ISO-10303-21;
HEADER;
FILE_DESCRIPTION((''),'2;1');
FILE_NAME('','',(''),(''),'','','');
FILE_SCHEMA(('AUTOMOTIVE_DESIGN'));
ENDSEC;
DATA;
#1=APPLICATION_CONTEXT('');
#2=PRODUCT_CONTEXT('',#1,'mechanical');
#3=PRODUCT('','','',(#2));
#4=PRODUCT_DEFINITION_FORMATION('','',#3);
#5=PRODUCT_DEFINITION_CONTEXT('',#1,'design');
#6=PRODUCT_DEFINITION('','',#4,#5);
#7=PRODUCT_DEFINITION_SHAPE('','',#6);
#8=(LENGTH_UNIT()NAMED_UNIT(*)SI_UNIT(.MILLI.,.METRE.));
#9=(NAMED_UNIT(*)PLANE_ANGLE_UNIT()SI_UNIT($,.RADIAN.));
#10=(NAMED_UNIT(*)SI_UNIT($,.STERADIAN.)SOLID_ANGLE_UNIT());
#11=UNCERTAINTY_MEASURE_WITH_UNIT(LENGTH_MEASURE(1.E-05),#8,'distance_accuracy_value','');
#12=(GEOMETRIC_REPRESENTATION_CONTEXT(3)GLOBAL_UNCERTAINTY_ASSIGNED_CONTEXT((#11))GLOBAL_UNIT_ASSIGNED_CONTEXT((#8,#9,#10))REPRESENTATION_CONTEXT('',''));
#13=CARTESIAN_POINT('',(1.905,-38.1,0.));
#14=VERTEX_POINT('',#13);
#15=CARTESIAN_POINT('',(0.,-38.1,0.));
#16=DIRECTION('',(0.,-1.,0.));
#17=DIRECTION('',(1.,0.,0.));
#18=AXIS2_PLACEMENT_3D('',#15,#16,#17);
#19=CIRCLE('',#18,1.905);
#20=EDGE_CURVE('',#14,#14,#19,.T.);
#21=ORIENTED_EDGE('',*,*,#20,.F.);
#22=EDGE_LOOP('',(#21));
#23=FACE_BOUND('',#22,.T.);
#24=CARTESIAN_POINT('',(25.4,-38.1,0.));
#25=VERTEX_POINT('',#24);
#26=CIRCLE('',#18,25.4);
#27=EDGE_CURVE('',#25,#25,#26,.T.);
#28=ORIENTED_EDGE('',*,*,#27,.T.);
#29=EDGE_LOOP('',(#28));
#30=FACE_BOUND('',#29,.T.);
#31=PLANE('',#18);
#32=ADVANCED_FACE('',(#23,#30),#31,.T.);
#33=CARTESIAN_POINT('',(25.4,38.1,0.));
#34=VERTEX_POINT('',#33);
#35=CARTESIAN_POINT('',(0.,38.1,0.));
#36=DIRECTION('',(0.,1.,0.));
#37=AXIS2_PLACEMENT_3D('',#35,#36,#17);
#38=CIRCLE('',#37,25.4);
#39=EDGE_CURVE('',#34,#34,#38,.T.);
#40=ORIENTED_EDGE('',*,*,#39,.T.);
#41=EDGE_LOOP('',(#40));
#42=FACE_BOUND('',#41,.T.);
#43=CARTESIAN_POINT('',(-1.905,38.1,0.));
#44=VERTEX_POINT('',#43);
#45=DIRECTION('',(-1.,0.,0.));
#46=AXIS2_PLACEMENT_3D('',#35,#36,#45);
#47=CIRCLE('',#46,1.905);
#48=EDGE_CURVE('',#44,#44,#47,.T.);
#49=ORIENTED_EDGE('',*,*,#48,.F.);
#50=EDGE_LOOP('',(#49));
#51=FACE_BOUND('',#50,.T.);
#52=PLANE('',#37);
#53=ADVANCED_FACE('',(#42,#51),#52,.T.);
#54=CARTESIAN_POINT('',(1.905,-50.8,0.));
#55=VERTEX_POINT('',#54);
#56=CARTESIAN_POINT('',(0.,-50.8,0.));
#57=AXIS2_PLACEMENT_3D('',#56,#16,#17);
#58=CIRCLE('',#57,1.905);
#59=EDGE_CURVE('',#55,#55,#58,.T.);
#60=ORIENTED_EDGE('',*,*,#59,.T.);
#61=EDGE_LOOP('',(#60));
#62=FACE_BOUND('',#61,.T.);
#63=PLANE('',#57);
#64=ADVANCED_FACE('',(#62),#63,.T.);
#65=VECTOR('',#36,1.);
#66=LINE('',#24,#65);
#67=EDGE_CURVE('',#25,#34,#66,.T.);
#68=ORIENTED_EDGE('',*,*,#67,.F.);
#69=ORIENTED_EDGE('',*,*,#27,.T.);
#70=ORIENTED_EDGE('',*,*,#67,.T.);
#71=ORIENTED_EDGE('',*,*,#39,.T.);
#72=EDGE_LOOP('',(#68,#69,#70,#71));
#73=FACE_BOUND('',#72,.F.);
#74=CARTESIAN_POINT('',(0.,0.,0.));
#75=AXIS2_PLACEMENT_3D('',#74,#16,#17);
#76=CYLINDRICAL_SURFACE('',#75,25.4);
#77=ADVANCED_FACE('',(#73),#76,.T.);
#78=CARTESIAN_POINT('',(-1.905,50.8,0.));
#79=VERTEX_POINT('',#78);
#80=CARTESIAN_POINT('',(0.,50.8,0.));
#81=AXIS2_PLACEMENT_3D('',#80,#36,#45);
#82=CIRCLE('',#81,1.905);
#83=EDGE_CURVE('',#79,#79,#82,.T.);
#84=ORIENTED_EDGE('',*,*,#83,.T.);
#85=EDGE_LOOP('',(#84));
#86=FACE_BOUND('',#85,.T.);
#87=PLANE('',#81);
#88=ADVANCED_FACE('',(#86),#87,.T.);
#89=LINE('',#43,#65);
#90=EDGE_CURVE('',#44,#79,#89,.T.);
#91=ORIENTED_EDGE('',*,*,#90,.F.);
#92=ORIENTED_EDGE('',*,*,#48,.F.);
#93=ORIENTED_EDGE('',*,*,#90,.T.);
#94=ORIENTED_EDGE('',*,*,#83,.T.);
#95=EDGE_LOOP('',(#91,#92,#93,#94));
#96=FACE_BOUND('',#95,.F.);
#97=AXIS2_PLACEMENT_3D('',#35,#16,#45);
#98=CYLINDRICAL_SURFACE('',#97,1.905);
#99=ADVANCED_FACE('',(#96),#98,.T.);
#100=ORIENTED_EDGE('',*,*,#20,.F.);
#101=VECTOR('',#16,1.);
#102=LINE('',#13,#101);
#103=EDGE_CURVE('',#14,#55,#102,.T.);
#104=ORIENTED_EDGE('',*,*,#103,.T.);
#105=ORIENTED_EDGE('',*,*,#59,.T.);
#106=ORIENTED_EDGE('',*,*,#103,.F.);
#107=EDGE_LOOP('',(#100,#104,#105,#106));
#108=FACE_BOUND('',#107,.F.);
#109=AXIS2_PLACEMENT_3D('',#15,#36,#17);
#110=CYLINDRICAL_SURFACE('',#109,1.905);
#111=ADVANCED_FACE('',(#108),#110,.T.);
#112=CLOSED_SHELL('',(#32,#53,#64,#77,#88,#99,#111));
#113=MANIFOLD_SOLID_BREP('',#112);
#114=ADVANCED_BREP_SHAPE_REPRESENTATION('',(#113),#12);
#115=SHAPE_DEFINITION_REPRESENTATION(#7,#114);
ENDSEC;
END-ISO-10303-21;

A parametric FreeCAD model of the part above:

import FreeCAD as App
import Part
import Sketcher
Q = App.Units.Quantity

doc = App.newDocument("Part")
params = doc.addObject("Spreadsheet::Sheet", "Params")
for row, (alias, value) in enumerate([
    ("sketch1_diameter", "2 in"),
    ("pad1_length", "1.5 in"),
    ("sketch2_diameter", "2 in"),
    ("pad2_length", "1.5 in"),
    ("sketch3_diameter", "0.15 in"),
    ("pad3_length", "0.5 in"),
    ("sketch4_diameter", "0.15 in"),
    ("pad4_length", "0.5 in"),
], start=1):
    params.set(f"A{row}", alias)
    params.set(f"B{row}", "=" + value)
    params.setAlias(f"B{row}", alias)

body = doc.addObject("PartDesign::Body", "Body")

sketch1 = doc.addObject("Sketcher::SketchObject", "Sketch")
body.addObject(sketch1)
sketch1.AttachmentSupport = (doc.XZ_Plane, [""])
sketch1.MapMode = "FlatFace"
sketch1.addGeometry(Part.Circle(App.Vector(0, 0, 0), App.Vector(0, 0, 1), 25), False)
sketch1.addConstraint([
    Sketcher.Constraint("Coincident", 0, 3, -1, 1),
    Sketcher.Constraint("Diameter", 0, Q("2 in")),
])
sketch1.setExpression("Constraints[1]", "Params.sketch1_diameter")
pad1 = doc.addObject("PartDesign::Pad", "Pad")
body.addObject(pad1)
pad1.Profile = sketch1
pad1.setExpression("Length", "Params.pad1_length")

sketch2 = doc.addObject("Sketcher::SketchObject", "Sketch001")
body.addObject(sketch2)
sketch2.AttachmentSupport = (doc.XZ_Plane, [""])
sketch2.MapMode = "FlatFace"
sketch2.addGeometry(Part.Circle(App.Vector(0, 0, 0), App.Vector(0, 0, 1), 25), False)
sketch2.addConstraint([
    Sketcher.Constraint("Coincident", 0, 3, -1, 1),
    Sketcher.Constraint("Diameter", 0, Q("2 in")),
])
sketch2.setExpression("Constraints[1]", "Params.sketch2_diameter")
pad2 = doc.addObject("PartDesign::Pad", "Pad001")
body.addObject(pad2)
pad2.Profile = sketch2
pad2.setExpression("Length", "Params.pad2_length")
pad2.Reversed = True

sketch3 = doc.addObject("Sketcher::SketchObject", "Sketch002")
body.addObject(sketch3)
sketch3.AttachmentSupport = (doc.XZ_Plane, [""])
sketch3.MapMode = "FlatFace"
sketch3.AttachmentOffset = App.Placement(App.Vector(0, 0, -1.5 * 25.4), App.Rotation())
sketch3.addGeometry(Part.Circle(App.Vector(0, 0, 0), App.Vector(0, 0, 1), 1.9), False)
sketch3.addConstraint([
    Sketcher.Constraint("Coincident", 0, 3, -1, 1),
    Sketcher.Constraint("Diameter", 0, Q("0.15 in")),
])
sketch3.setExpression("Constraints[1]", "Params.sketch3_diameter")
pad3 = doc.addObject("PartDesign::Pad", "Pad002")
body.addObject(pad3)
pad3.Profile = sketch3
pad3.setExpression("Length", "Params.pad3_length")
pad3.Reversed = True

sketch4 = doc.addObject("Sketcher::SketchObject", "Sketch003")
body.addObject(sketch4)
sketch4.AttachmentSupport = (doc.XZ_Plane, [""])
sketch4.MapMode = "FlatFace"
sketch4.AttachmentOffset = App.Placement(App.Vector(0, 0, 1.5 * 25.4), App.Rotation())
sketch4.addGeometry(Part.Circle(App.Vector(0, 0, 0), App.Vector(0, 0, 1), 1.9), False)
sketch4.addConstraint([
    Sketcher.Constraint("Coincident", 0, 3, -1, 1),
    Sketcher.Constraint("Diameter", 0, Q("0.15 in")),
])
sketch4.setExpression("Constraints[1]", "Params.sketch4_diameter")
pad4 = doc.addObject("PartDesign::Pad", "Pad003")
body.addObject(pad4)
pad4.Profile = sketch4
pad4.setExpression("Length", "Params.pad4_length")

doc.recompute()
